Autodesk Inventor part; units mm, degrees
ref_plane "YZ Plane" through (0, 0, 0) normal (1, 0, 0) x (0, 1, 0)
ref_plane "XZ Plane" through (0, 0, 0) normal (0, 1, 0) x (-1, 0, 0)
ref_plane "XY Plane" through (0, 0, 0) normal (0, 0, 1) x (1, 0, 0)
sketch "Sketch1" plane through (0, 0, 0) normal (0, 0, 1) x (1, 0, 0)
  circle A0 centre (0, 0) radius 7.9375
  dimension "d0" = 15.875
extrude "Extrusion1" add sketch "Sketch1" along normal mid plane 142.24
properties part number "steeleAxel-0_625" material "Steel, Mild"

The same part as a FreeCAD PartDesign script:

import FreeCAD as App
import Part
import Sketcher
Q = App.Units.Quantity

doc = App.newDocument("Part")
params = doc.addObject("Spreadsheet::Sheet", "Params")
for row, (alias, value) in enumerate([
    ("sketch1_diameter", "0.625 in"),
    ("pad1_length", "5.6 in"),
], start=1):
    params.set(f"A{row}", alias)
    params.set(f"B{row}", "=" + value)
    params.setAlias(f"B{row}", alias)

body = doc.addObject("PartDesign::Body", "Body")

# Sketch on XY plane
sketch1 = body.newObject("Sketcher::SketchObject", "Sketch")
sketch1.AttachmentSupport = (doc.getObject("XY_Plane"), [""])
sketch1.MapMode = "FlatFace"
sketch1.addGeometry(Part.Circle(App.Vector(0, 0, 0), App.Vector(0, 0, 1), 7.9375), False)
sketch1.addConstraint([
    Sketcher.Constraint("Coincident", 0, 3, -1, 1),
    Sketcher.Constraint("Diameter", 0, Q("0.625 in")),
])
sketch1.setExpression("Constraints[1]", "Params.sketch1_diameter")
pad1 = body.newObject("PartDesign::Pad", "Pad")
pad1.Profile = sketch1
pad1.setExpression("Length", "Params.pad1_length")
pad1.Midplane = True

doc.recompute()
